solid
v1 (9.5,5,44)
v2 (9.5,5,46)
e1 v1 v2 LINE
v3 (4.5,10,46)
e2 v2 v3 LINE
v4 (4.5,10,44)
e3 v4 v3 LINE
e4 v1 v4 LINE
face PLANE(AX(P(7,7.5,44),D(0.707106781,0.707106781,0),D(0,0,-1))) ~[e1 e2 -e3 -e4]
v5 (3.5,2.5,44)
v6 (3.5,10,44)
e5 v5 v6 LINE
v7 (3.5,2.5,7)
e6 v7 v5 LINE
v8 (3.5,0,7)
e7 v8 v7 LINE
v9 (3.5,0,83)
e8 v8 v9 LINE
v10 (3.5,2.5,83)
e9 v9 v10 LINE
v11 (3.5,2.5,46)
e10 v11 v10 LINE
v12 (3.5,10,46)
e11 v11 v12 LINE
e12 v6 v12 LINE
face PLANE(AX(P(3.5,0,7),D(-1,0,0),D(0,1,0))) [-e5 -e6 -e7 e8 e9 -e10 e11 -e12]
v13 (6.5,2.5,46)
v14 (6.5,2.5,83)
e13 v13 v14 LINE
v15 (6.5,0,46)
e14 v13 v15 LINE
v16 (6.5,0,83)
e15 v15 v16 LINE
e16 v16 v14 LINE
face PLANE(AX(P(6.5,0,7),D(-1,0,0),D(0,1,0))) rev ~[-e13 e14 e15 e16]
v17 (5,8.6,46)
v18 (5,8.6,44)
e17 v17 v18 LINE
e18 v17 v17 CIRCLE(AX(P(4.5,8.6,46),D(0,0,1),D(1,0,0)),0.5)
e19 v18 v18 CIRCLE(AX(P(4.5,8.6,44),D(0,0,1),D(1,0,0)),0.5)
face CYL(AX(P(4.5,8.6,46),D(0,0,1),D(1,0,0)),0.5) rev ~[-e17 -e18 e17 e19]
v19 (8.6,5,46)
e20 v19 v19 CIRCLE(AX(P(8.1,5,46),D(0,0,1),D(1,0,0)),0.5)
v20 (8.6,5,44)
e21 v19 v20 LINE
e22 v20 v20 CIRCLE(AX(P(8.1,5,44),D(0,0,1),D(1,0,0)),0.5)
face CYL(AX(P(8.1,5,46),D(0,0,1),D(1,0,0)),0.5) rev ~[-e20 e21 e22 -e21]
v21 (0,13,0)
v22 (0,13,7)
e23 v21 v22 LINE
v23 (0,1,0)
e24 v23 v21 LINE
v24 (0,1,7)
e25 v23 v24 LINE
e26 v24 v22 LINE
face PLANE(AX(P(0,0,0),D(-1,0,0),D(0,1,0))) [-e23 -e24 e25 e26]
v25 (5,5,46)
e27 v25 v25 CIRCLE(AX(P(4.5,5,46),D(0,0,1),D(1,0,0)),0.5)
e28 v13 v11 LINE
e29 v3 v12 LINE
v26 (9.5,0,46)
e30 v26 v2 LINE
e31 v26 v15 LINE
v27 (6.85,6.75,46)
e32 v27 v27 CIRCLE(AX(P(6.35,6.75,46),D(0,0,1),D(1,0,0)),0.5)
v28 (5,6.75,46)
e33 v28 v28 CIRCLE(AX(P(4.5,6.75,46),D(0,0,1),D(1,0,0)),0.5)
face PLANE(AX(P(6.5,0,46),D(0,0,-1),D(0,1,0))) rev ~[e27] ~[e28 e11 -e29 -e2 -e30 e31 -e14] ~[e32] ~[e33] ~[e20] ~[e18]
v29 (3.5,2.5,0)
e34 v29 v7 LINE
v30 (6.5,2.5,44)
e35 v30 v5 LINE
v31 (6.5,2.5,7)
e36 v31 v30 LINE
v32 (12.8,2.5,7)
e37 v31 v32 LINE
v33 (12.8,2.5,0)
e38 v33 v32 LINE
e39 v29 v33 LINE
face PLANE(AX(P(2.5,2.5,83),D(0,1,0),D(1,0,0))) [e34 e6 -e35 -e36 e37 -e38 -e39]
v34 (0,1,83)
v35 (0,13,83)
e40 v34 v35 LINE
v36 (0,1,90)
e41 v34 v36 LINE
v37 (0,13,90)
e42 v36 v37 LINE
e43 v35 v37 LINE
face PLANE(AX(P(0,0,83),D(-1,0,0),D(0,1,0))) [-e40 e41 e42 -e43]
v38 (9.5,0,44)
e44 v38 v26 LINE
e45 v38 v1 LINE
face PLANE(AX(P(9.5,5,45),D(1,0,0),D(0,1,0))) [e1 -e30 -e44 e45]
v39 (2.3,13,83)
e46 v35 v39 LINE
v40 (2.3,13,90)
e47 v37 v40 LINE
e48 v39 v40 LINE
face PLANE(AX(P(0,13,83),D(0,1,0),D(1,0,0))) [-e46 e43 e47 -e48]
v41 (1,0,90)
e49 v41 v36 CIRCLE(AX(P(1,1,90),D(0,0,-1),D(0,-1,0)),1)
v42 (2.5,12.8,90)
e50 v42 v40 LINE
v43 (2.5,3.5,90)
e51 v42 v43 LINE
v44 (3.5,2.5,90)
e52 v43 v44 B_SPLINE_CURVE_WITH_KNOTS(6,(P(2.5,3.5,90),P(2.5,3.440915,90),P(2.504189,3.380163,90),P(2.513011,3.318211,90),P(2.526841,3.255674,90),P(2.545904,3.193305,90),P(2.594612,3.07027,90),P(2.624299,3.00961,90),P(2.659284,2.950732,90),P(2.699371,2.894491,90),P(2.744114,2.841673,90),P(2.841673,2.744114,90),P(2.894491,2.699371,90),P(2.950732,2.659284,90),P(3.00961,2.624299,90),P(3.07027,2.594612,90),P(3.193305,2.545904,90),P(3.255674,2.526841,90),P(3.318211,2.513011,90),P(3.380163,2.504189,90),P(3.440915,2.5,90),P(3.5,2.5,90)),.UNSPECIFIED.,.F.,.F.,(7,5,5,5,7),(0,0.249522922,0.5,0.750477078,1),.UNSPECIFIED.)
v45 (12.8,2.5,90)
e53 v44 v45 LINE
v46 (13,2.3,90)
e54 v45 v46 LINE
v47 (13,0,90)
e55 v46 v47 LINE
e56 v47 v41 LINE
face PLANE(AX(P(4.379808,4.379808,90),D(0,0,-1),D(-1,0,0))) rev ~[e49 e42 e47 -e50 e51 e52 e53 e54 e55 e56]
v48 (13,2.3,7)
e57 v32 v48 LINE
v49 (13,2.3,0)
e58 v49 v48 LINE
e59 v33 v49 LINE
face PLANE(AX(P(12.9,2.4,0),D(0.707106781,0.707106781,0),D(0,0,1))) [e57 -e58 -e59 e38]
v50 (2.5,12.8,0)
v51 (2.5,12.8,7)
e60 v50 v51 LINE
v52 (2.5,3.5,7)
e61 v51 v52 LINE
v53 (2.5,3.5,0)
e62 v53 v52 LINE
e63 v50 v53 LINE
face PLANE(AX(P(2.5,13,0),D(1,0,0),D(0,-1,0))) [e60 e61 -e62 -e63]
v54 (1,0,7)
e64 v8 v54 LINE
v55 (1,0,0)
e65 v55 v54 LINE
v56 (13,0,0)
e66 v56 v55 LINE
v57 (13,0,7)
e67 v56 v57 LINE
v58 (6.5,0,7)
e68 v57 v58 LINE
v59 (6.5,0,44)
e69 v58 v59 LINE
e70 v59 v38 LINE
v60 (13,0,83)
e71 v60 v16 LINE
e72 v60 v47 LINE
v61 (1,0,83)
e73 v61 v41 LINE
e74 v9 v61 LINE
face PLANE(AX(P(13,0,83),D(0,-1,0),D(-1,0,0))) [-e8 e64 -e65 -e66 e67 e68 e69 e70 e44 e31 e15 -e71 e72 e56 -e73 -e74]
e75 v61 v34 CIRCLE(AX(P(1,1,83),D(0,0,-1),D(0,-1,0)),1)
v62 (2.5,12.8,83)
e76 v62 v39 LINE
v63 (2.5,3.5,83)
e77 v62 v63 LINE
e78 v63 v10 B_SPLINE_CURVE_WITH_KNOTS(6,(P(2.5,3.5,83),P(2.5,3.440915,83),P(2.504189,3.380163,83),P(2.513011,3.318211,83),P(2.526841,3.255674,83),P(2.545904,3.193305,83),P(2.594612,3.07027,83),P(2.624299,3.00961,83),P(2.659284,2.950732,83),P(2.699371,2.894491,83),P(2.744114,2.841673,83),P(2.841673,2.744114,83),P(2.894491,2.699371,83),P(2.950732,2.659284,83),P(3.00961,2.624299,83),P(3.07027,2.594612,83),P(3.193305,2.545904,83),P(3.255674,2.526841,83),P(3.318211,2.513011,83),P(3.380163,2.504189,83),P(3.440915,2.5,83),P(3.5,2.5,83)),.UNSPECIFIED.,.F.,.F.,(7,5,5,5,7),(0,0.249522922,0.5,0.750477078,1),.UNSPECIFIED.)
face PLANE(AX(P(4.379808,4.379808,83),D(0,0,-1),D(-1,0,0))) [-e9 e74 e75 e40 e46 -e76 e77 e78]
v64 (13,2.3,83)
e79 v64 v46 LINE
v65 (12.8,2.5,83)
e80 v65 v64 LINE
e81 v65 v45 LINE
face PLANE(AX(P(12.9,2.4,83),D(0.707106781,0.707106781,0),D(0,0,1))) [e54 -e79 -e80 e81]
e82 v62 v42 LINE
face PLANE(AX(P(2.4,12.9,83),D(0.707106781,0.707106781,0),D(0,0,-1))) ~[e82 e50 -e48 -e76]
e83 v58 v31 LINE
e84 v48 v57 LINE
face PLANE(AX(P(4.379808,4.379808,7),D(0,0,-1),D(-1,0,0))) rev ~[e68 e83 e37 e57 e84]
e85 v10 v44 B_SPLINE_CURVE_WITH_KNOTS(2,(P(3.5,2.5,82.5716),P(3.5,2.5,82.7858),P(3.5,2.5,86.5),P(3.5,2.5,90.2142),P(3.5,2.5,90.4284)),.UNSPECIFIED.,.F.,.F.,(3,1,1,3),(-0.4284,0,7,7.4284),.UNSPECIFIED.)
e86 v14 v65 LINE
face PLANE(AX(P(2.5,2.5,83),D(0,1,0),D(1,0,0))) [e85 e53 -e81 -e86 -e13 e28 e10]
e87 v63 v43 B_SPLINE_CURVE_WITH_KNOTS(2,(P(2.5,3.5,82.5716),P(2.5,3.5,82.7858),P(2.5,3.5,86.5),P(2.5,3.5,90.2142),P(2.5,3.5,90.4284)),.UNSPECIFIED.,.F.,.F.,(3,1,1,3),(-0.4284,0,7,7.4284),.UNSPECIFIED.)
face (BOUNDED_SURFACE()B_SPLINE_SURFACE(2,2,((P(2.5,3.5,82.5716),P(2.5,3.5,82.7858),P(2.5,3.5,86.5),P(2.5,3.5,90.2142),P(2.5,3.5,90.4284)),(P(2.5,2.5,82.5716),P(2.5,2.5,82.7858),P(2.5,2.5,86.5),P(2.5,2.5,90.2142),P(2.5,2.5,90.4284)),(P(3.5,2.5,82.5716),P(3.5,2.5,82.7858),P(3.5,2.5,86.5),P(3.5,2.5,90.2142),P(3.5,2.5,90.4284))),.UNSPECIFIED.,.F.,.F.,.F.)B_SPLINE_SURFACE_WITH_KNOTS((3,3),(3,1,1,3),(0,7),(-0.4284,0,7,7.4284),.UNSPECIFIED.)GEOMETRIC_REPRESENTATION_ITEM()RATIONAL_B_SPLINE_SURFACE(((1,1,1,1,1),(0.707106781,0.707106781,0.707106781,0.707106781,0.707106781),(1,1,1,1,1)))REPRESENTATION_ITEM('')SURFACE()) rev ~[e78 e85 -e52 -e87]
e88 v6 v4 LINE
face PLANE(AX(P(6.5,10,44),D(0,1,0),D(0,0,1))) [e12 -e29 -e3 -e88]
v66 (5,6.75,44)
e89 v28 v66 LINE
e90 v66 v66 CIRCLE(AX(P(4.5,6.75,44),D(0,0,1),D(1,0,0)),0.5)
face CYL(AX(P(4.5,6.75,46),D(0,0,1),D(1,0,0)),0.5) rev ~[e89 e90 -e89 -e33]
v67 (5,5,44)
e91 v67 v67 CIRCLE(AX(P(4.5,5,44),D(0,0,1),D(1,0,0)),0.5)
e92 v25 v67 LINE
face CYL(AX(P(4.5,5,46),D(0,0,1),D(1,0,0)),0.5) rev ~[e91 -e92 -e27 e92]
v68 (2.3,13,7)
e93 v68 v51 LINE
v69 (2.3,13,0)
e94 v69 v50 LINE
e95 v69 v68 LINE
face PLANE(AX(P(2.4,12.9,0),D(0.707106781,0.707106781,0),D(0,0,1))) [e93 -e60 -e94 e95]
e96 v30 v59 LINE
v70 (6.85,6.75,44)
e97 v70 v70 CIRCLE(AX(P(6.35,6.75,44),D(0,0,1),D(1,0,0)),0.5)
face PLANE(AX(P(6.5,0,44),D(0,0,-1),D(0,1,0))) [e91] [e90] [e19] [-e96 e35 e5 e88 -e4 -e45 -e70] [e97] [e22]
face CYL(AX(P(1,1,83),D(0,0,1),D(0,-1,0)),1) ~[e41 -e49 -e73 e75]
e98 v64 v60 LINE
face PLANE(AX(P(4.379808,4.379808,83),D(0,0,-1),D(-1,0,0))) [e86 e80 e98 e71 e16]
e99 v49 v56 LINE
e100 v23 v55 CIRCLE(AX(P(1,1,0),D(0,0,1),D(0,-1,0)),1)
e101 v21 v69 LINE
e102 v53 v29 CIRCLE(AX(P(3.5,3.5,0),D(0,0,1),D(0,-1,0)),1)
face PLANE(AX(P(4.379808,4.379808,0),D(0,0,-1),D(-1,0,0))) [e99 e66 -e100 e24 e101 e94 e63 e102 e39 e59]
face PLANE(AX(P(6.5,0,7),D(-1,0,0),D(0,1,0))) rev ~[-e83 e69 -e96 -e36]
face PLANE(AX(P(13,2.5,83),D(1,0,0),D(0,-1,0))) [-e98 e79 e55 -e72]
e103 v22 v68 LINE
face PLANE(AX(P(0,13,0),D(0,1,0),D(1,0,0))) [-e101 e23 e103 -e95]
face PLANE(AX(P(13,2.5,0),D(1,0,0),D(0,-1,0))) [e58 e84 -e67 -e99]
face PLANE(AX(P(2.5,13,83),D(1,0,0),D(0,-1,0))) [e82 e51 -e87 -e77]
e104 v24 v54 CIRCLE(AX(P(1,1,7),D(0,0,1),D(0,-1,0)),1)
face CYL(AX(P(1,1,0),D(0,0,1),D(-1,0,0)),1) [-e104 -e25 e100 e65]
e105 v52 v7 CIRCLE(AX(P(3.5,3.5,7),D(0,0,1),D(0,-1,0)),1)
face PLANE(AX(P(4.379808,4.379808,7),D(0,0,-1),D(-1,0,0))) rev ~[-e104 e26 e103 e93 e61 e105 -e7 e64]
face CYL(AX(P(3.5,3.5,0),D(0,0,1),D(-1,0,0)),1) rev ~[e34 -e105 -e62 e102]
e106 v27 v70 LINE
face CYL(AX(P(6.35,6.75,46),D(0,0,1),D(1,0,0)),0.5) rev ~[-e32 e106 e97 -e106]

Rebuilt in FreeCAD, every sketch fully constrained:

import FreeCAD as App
import Part
import Sketcher
from FreeCAD import Vector
Q = App.Units.Quantity


def edges_at(feature, points):
    """Names of the edges that pass closest to the given points."""
    edges = feature.Shape.Edges
    near = lambda p: min(range(len(edges)), key=lambda i: edges[i].distToShape(Part.Vertex(*p))[0])
    return sorted({f"Edge{near(p) + 1}" for p in points})


def add_polygon(sketch, points):
    """Adds a closed chain of lines whose ends are joined by coincident constraints."""
    first, n = sketch.GeometryCount, len(points)
    for a, b in zip(points, points[1:] + points[:1]):
        sketch.addGeometry(Part.LineSegment(App.Vector(*a, 0), App.Vector(*b, 0)), False)
    for i in range(n):
        sketch.addConstraint(Sketcher.Constraint("Coincident", first + i, 2, first + (i + 1) % n, 1))

doc = App.newDocument("Part")
body = doc.addObject("PartDesign::Body", "Body")

# Sketch on XY plane
sketch1 = doc.addObject("Sketcher::SketchObject", "Sketch")
body.addObject(sketch1)
sketch1.AttachmentSupport = (doc.XY_Plane, [""])
sketch1.MapMode = "FlatFace"
add_polygon(sketch1, [(0, 13), (0, 0), (13, 0), (13, 2.5), (2.5, 2.5), (2.5, 13)])  # lines 0-5
sketch1.addConstraint(Sketcher.Constraint("Vertical", 0))
sketch1.addConstraint(Sketcher.Constraint("Horizontal", 1))
sketch1.addConstraint(Sketcher.Constraint("Vertical", 2))
sketch1.addConstraint(Sketcher.Constraint("Horizontal", 3))
sketch1.addConstraint(Sketcher.Constraint("Vertical", 4))
sketch1.addConstraint(Sketcher.Constraint("Horizontal", 5))
sketch1.addConstraint(Sketcher.Constraint("Coincident", 0, 2, -1, 1))
sketch1.addConstraint(Sketcher.Constraint("Equal", 1, 0))
sketch1.addConstraint(Sketcher.Constraint("Equal", 5, 2))
sketch1.addConstraint(Sketcher.Constraint("DistanceX", 1, 1, 1, 2, Q("13 mm")))
sketch1.addConstraint(Sketcher.Constraint("DistanceX", 3, 2, 3, 1, Q("10.5 mm")))
pad1 = doc.addObject("PartDesign::Pad", "Pad")
body.addObject(pad1)
pad1.Profile = sketch1
pad1.Length = 7
doc.recompute()

fillet = doc.addObject("PartDesign::Fillet", "Fillet")
body.addObject(fillet)
fillet.Base = (pad1, edges_at(pad1, [(2.5, 2.5, 3.5)]))
fillet.Radius = 1
doc.recompute()

fillet2 = doc.addObject("PartDesign::Fillet", "Fillet001")
body.addObject(fillet2)
fillet2.Base = (fillet, edges_at(fillet, [(0, 0, 3.5)]))
fillet2.Radius = 1
doc.recompute()

chamfer = doc.addObject("PartDesign::Chamfer", "Chamfer")
body.addObject(chamfer)
chamfer.Base = (fillet2, edges_at(fillet2, [(2.5, 13, 3.5)]))
chamfer.Size = 0.2
doc.recompute()

chamfer2 = doc.addObject("PartDesign::Chamfer", "Chamfer001")
body.addObject(chamfer2)
chamfer2.Base = (chamfer, edges_at(chamfer, [(13, 2.5, 3.5)]))
chamfer2.Size = 0.2

# Sketch on XY plane
sketch2 = doc.addObject("Sketcher::SketchObject", "Sketch001")
body.addObject(sketch2)
sketch2.AttachmentSupport = (doc.XY_Plane, [""])
sketch2.MapMode = "FlatFace"
sketch2.AttachmentOffset = App.Placement(Vector(0, 0, 7), App.Rotation())
add_polygon(sketch2, [(3.5, 2.5), (3.5, 0), (6.5, 0), (6.5, 2.5)])  # lines 0-3
sketch2.addConstraint(Sketcher.Constraint("Vertical", 0))
sketch2.addConstraint(Sketcher.Constraint("Horizontal", 1))
sketch2.addConstraint(Sketcher.Constraint("Vertical", 2))
sketch2.addConstraint(Sketcher.Constraint("Horizontal", 3))
sketch2.addConstraint(Sketcher.Constraint("PointOnObject", 0, 2, -1))
sketch2.addConstraint(Sketcher.Constraint("DistanceX", 1, 1, 1, 2, Q("3 mm")))
sketch2.addConstraint(Sketcher.Constraint("DistanceY", 0, 2, 0, 1, Q("2.5 mm")))
sketch2.addConstraint(Sketcher.Constraint("DistanceX", -1, 1, 0, 2, Q("3.5 mm")))
pad2 = doc.addObject("PartDesign::Pad", "Pad001")
body.addObject(pad2)
pad2.Profile = sketch2
pad2.Length = 76

# Sketch on XY plane
sketch3 = doc.addObject("Sketcher::SketchObject", "Sketch002")
body.addObject(sketch3)
sketch3.AttachmentSupport = (doc.XY_Plane, [""])
sketch3.MapMode = "FlatFace"
sketch3.AttachmentOffset = App.Placement(Vector(0, 0, 83), App.Rotation())
add_polygon(sketch3, [(13, 2.5), (2.5, 2.5), (2.5, 13), (0, 13), (0, 0), (13, 0)])  # lines 0-5
sketch3.addConstraint(Sketcher.Constraint("Horizontal", 0))
sketch3.addConstraint(Sketcher.Constraint("Vertical", 1))
sketch3.addConstraint(Sketcher.Constraint("Horizontal", 2))
sketch3.addConstraint(Sketcher.Constraint("Vertical", 3))
sketch3.addConstraint(Sketcher.Constraint("Horizontal", 4))
sketch3.addConstraint(Sketcher.Constraint("Vertical", 5))
sketch3.addConstraint(Sketcher.Constraint("Coincident", 3, 2, -1, 1))
sketch3.addConstraint(Sketcher.Constraint("Equal", 0, 1))
sketch3.addConstraint(Sketcher.Constraint("Equal", 4, 3))
sketch3.addConstraint(Sketcher.Constraint("DistanceX", 4, 1, 4, 2, Q("13 mm")))
sketch3.addConstraint(Sketcher.Constraint("DistanceX", 0, 2, 0, 1, Q("10.5 mm")))
pad3 = doc.addObject("PartDesign::Pad", "Pad002")
body.addObject(pad3)
pad3.Profile = sketch3
pad3.Length = 7
doc.recompute()

fillet3 = doc.addObject("PartDesign::Fillet", "Fillet002")
body.addObject(fillet3)
fillet3.Base = (pad3, edges_at(pad3, [(0, 0, 86.5)]))
fillet3.Radius = 1
doc.recompute()

fillet4 = doc.addObject("PartDesign::Fillet", "Fillet003")
body.addObject(fillet4)
fillet4.Base = (fillet3, edges_at(fillet3, [(2.5, 2.5, 86.5)]))
fillet4.Radius = 1
doc.recompute()

chamfer3 = doc.addObject("PartDesign::Chamfer", "Chamfer002")
body.addObject(chamfer3)
chamfer3.Base = (fillet4, edges_at(fillet4, [(2.5, 13, 86.5)]))
chamfer3.Size = 0.2
doc.recompute()

chamfer4 = doc.addObject("PartDesign::Chamfer", "Chamfer003")
body.addObject(chamfer4)
chamfer4.Base = (chamfer3, edges_at(chamfer3, [(13, 2.5, 86.5)]))
chamfer4.Size = 0.2

# Sketch on YZ plane
sketch4 = doc.addObject("Sketcher::SketchObject", "Sketch003")
body.addObject(sketch4)
sketch4.AttachmentSupport = (doc.YZ_Plane, [""])
sketch4.MapMode = "FlatFace"
sketch4.AttachmentOffset = App.Placement(Vector(0, 0, 6.5), App.Rotation())
add_polygon(sketch4, [(0, 46), (0, 44), (10, 44), (10, 46)])  # lines 0-3
sketch4.addConstraint(Sketcher.Constraint("Vertical", 0))
sketch4.addConstraint(Sketcher.Constraint("Horizontal", 1))
sketch4.addConstraint(Sketcher.Constraint("Vertical", 2))
sketch4.addConstraint(Sketcher.Constraint("Horizontal", 3))
sketch4.addConstraint(Sketcher.Constraint("PointOnObject", 0, 2, -2))
sketch4.addConstraint(Sketcher.Constraint("DistanceX", 1, 1, 1, 2, Q("10 mm")))
sketch4.addConstraint(Sketcher.Constraint("DistanceY", 0, 2, 0, 1, Q("2 mm")))
sketch4.addConstraint(Sketcher.Constraint("DistanceY", -1, 1, 0, 2, Q("44 mm")))
pad4 = doc.addObject("PartDesign::Pad", "Pad003")
body.addObject(pad4)
pad4.Profile = sketch4
pad4.Length = 6
pad4.Midplane = True
doc.recompute()

chamfer5 = doc.addObject("PartDesign::Chamfer", "Chamfer004")
body.addObject(chamfer5)
chamfer5.Base = (pad4, edges_at(pad4, [(9.5, 10, 45)]))
chamfer5.Size = 5

# Sketch on XY plane
sketch5 = doc.addObject("Sketcher::SketchObject", "Sketch004")
body.addObject(sketch5)
sketch5.AttachmentSupport = (doc.XY_Plane, [""])
sketch5.MapMode = "FlatFace"
sketch5.AttachmentOffset = App.Placement(Vector(0, 0, 46), App.Rotation())
sketch5.addGeometry(Part.Circle(Vector(4.5, 8.6, 0), Vector(0, 0, 1), 0.5), False)
sketch5.addGeometry(Part.Circle(Vector(4.5, 6.8, 0), Vector(0, 0, 1), 0.5), False)
sketch5.addGeometry(Part.Circle(Vector(4.5, 5, 0), Vector(0, 0, 1), 0.5), False)
sketch5.addGeometry(Part.Circle(Vector(6.3, 6.8, 0), Vector(0, 0, 1), 0.5), False)
sketch5.addGeometry(Part.Circle(Vector(8.1, 5, 0), Vector(0, 0, 1), 0.5), False)
sketch5.addConstraint(Sketcher.Constraint("Equal", 0, 1))
sketch5.addConstraint(Sketcher.Constraint("Equal", 1, 2))
sketch5.addConstraint(Sketcher.Constraint("Equal", 2, 3))
sketch5.addConstraint(Sketcher.Constraint("Equal", 3, 4))
sketch5.addConstraint(Sketcher.Constraint("Horizontal", 1, 3, 3, 3))
sketch5.addConstraint(Sketcher.Constraint("Horizontal", 2, 3, 4, 3))
sketch5.addConstraint(Sketcher.Constraint("Vertical", 0, 3, 1, 3))
sketch5.addConstraint(Sketcher.Constraint("Vertical", 1, 3, 2, 3))
sketch5.addConstraint(Sketcher.Constraint("Diameter", 0, Q("1 mm")))
sketch5.addConstraint(Sketcher.Constraint("DistanceY", -1, 1, 2, 3, Q("5 mm")))
sketch5.addConstraint(Sketcher.Constraint("DistanceX", -1, 1, 0, 3, Q("4.5 mm")))
sketch5.addConstraint(Sketcher.Constraint("DistanceY", -1, 1, 0, 3, Q("8.6 mm")))
sketch5.addConstraint(Sketcher.Constraint("DistanceX", -1, 1, 4, 3, Q("8.1 mm")))
sketch5.addConstraint(Sketcher.Constraint("DistanceY", -1, 1, 1, 3, Q("6.75 mm")))
sketch5.addConstraint(Sketcher.Constraint("DistanceX", -1, 1, 3, 3, Q("6.35 mm")))
pocket1 = doc.addObject("PartDesign::Pocket", "Pocket")
body.addObject(pocket1)
pocket1.Profile = sketch5
pocket1.Type = "ThroughAll"

doc.recompute()
